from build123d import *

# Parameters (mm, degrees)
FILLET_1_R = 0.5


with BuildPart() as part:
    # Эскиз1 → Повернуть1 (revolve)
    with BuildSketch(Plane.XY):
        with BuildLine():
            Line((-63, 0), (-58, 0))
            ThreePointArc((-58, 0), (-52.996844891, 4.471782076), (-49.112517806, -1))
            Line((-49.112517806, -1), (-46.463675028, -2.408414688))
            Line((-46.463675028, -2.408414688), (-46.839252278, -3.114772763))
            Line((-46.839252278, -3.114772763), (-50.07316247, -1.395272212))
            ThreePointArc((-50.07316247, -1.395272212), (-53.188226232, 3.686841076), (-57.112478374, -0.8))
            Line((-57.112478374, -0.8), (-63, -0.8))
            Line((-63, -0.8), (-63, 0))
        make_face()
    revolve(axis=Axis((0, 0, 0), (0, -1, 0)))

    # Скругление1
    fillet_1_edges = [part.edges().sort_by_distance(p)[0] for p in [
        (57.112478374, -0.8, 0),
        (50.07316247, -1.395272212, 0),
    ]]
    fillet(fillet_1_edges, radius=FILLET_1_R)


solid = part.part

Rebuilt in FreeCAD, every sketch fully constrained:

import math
import FreeCAD as App
import Part
import Sketcher
from FreeCAD import Vector
Q = App.Units.Quantity


def edges_at(feature, points):
    """Names of the edges that pass closest to the given points."""
    edges = feature.Shape.Edges
    near = lambda p: min(range(len(edges)), key=lambda i: edges[i].distToShape(Part.Vertex(*p))[0])
    return sorted({f"Edge{near(p) + 1}" for p in points})

doc = App.newDocument("Part")
body = doc.addObject("PartDesign::Body", "Body")

sketch1 = body.newObject("Sketcher::SketchObject", "Sketch")
sketch1.AttachmentSupport = (doc.getObject("XY_Plane"), [""])
sketch1.MapMode = "FlatFace"
sketch1.addGeometry([
    Part.LineSegment(Vector(-58, 0, 0), Vector(-63, 0, 0)),
    Part.LineSegment(Vector(-63, 0, 0), Vector(-63, -0.8, 0)),
    Part.LineSegment(Vector(-63, -0.8, 0), Vector(-57.1, -0.8, 0)),
    Part.ArcOfCircle(Part.Circle(Vector(-53.5, 0, 0), Vector(0, 0, 1), 3.7), math.radians(-22), math.radians(192)),
    Part.LineSegment(Vector(-50.1, -1.4, 0), Vector(-46.8, -3.1, 0)),
    Part.LineSegment(Vector(-46.8, -3.1, 0), Vector(-46.5, -2.4, 0)),
    Part.LineSegment(Vector(-46.5, -2.4, 0), Vector(-49.1, -1, 0)),
    Part.ArcOfCircle(Part.Circle(Vector(-53.5, 0, 0), Vector(0, 0, 1), 4.5), math.radians(-13), math.radians(180)),
], False)
sketch1.addConstraint([
    Sketcher.Constraint("Coincident", 0, 2, 1, 1),
    Sketcher.Constraint("Coincident", 1, 2, 2, 1),
    Sketcher.Constraint("Coincident", 2, 2, 3, 2),
    Sketcher.Constraint("Coincident", 3, 1, 4, 1),
    Sketcher.Constraint("Coincident", 4, 2, 5, 1),
    Sketcher.Constraint("Coincident", 5, 2, 6, 1),
    Sketcher.Constraint("Coincident", 6, 2, 7, 1),
    Sketcher.Constraint("Coincident", 7, 2, 0, 1),
    Sketcher.Constraint("Horizontal", 0),
    Sketcher.Constraint("Vertical", 1),
    Sketcher.Constraint("Horizontal", 2),
    Sketcher.Constraint("Coincident", 7, 3, 3, 3),
    Sketcher.Constraint("PointOnObject", 3, 3, -1),
    Sketcher.Constraint("PointOnObject", 0, 2, -1),
    Sketcher.Constraint("Perpendicular", 4, 5),
    Sketcher.Constraint("Perpendicular", 5, 6),
    Sketcher.Constraint("Radius", 3, 3.7),
    Sketcher.Constraint("Radius", 7, 4.5),
    Sketcher.Constraint("DistanceX", 0, 2, 0, 1, 5.0),
    Sketcher.Constraint("Angle", 4, Q("-28 deg")),
    Sketcher.Constraint("Distance", 6, 3.0),
    Sketcher.Constraint("DistanceY", 1, 2, 1, 1, 0.8),
    Sketcher.Constraint("DistanceX", 0, 2, -1, 1, 63.0),
    Sketcher.Constraint("DistanceY", 6, 2, -1, 1, 1.0),
    Sketcher.Constraint("Distance", 5, 0.8),
])
revolution = body.newObject("PartDesign::Revolution", "Revolution")
revolution.Profile = sketch1
revolution.ReferenceAxis = (sketch1, ["V_Axis"])
revolution.Angle = 360
doc.recompute()

fillet = body.newObject("PartDesign::Fillet", "Fillet")
fillet.Base = (revolution, edges_at(revolution, [(57.112, -0.8, 0), (50.073, -1.395, 0)]))
fillet.Radius = 0.5

doc.recompute()
